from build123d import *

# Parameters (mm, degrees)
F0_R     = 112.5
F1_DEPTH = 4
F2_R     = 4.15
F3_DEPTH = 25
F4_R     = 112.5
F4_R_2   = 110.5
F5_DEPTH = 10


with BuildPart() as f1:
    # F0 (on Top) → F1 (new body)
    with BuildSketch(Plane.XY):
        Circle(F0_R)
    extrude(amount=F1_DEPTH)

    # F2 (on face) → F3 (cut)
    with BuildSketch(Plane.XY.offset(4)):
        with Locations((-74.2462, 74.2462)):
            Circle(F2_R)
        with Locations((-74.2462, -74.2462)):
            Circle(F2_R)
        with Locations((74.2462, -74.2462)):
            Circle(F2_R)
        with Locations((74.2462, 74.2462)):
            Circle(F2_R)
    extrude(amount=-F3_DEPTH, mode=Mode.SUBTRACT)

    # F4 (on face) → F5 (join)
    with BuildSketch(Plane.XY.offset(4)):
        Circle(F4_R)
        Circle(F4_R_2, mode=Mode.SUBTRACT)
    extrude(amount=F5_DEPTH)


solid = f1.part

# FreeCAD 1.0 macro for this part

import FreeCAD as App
import Part
import Sketcher

V = App.Vector
Q = App.Units.Quantity

doc = App.newDocument("Part")
body = doc.addObject("PartDesign::Body", "Body")

sketch1 = body.newObject("Sketcher::SketchObject", "Sketch")
sketch1.AttachmentSupport = (doc.getObject("XY_Plane"), [""])
sketch1.MapMode = "FlatFace"
sketch1.addGeometry(Part.Circle(V(0, 0, 0), V(0, 0, 1), 112), False)
sketch1.addConstraint(Sketcher.Constraint("Coincident", 0, 3, -1, 1))
sketch1.addConstraint(Sketcher.Constraint("Diameter", 0, Q("225 mm")))
pad1 = body.newObject("PartDesign::Pad", "Pad")
pad1.Profile = sketch1
pad1.Length = 4

sketch2 = body.newObject("Sketcher::SketchObject", "Sketch001")
sketch2.AttachmentSupport = (doc.getObject("XY_Plane"), [""])
sketch2.MapMode = "FlatFace"
sketch2.AttachmentOffset = App.Placement(V(0, 0, 4), App.Rotation())
sketch2.addGeometry(Part.Circle(V(-74.2, 74.2, 0), V(0, 0, 1), 4.2), False)
sketch2.addGeometry(Part.Circle(V(-74.2, -74.2, 0), V(0, 0, 1), 4.2), False)
sketch2.addGeometry(Part.Circle(V(74.2, -74.2, 0), V(0, 0, 1), 4.2), False)
sketch2.addGeometry(Part.Circle(V(74.2, 74.2, 0), V(0, 0, 1), 4.2), False)
sketch2.addConstraint(Sketcher.Constraint("Equal", 0, 1))
sketch2.addConstraint(Sketcher.Constraint("Equal", 1, 2))
sketch2.addConstraint(Sketcher.Constraint("Equal", 2, 3))
sketch2.addConstraint(Sketcher.Constraint("Symmetric", 0, 3, 2, 3, -1, 1))
sketch2.addConstraint(Sketcher.Constraint("Symmetric", 1, 3, 3, 3, -1, 1))
sketch2.addConstraint(Sketcher.Constraint("Symmetric", 1, 3, 2, 3, -2))
sketch2.addConstraint(Sketcher.Constraint("Diameter", 0, Q("8.3 mm")))
sketch2.addConstraint(Sketcher.Constraint("DistanceX", 0, 3, -1, 1, Q("74.2462 mm")))
sketch2.addConstraint(Sketcher.Constraint("DistanceY", -1, 1, 0, 3, Q("74.2462 mm")))
pocket1 = body.newObject("PartDesign::Pocket", "Pocket")
pocket1.Profile = sketch2
pocket1.Length = 25

sketch3 = body.newObject("Sketcher::SketchObject", "Sketch002")
sketch3.AttachmentSupport = (doc.getObject("XY_Plane"), [""])
sketch3.MapMode = "FlatFace"
sketch3.AttachmentOffset = App.Placement(V(0, 0, 4), App.Rotation())
sketch3.addGeometry(Part.Circle(V(0, 0, 0), V(0, 0, 1), 112), False)
sketch3.addGeometry(Part.Circle(V(0, 0, 0), V(0, 0, 1), 110), False)
sketch3.addConstraint(Sketcher.Constraint("Coincident", 0, 3, -1, 1))
sketch3.addConstraint(Sketcher.Constraint("Coincident", 1, 3, -1, 1))
sketch3.addConstraint(Sketcher.Constraint("Diameter", 0, Q("225 mm")))
sketch3.addConstraint(Sketcher.Constraint("Diameter", 1, Q("221 mm")))
pad2 = body.newObject("PartDesign::Pad", "Pad001")
pad2.Profile = sketch3
pad2.Length = 10

doc.recompute()
